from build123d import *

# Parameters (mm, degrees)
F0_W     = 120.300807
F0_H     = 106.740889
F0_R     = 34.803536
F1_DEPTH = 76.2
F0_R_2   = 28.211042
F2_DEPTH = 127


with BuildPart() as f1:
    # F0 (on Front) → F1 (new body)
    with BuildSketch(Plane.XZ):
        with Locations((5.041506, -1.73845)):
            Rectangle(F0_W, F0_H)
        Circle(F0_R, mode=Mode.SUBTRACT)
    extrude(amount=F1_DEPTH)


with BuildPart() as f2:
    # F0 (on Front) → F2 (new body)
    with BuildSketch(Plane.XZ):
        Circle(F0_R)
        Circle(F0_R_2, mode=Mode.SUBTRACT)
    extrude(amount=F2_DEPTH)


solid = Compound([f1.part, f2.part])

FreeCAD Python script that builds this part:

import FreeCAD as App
import Part
import Sketcher

V = App.Vector
Q = App.Units.Quantity

doc = App.newDocument("Part")
body = doc.addObject("PartDesign::Body", "Body")

# Sketch on XZ plane
sketch1 = doc.addObject("Sketcher::SketchObject", "Sketch")
body.addObject(sketch1)
sketch1.AttachmentSupport = (doc.XZ_Plane, [""])
sketch1.MapMode = "FlatFace"
sketch1.addGeometry([
    Part.LineSegment(V(-55.108897, 51.631994, 0), V(-55.108897, -55.108894, 0)),  # 0
    Part.LineSegment(V(-55.108897, -55.108894, 0), V(65.191909, -55.108894, 0)),  # 1
    Part.LineSegment(V(65.191909, -55.108894, 0), V(65.191909, 51.631994, 0)),  # 2
    Part.LineSegment(V(65.191909, 51.631994, 0), V(-55.108897, 51.631994, 0)),  # 3
    Part.Circle(V(0, 0, 0), V(0, 0, 1), 34.803536),  # 4
], False)
sketch1.addConstraint([
    Sketcher.Constraint("Coincident", 0, 2, 1, 1),
    Sketcher.Constraint("Coincident", 1, 2, 2, 1),
    Sketcher.Constraint("Coincident", 2, 2, 3, 1),
    Sketcher.Constraint("Coincident", 3, 2, 0, 1),
    Sketcher.Constraint("Vertical", 0),
    Sketcher.Constraint("Horizontal", 1),
    Sketcher.Constraint("Vertical", 2),
    Sketcher.Constraint("Horizontal", 3),
    Sketcher.Constraint("Coincident", 4, 3, -1, 1),
    Sketcher.Constraint("Diameter", 4, Q("69.607072 mm")),
    Sketcher.Constraint("DistanceY", 0, 2, 0, 1, Q("106.740889 mm")),
    Sketcher.Constraint("DistanceX", 1, 1, 1, 2, Q("120.300807 mm")),
    Sketcher.Constraint("DistanceX", -1, 1, 1, 2, Q("65.191909 mm")),
    Sketcher.Constraint("DistanceY", 0, 2, -1, 1, Q("55.108894 mm")),
])
pad1 = doc.addObject("PartDesign::Pad", "Pad")
body.addObject(pad1)
pad1.Profile = sketch1
pad1.Length = Q("3 in")
body2 = doc.addObject("PartDesign::Body", "Body001")

# Sketch on XZ plane
sketch2 = doc.addObject("Sketcher::SketchObject", "Sketch001")
body2.addObject(sketch2)
sketch2.AttachmentSupport = (doc.getObject("XZ_Plane001"), [""])
sketch2.MapMode = "FlatFace"
sketch2.addGeometry([
    Part.Circle(V(0, 0, 0), V(0, 0, 1), 34.803536),
    Part.Circle(V(0, 0, 0), V(0, 0, 1), 28.211042),
], False)
sketch2.addConstraint([
    Sketcher.Constraint("Coincident", 0, 3, -1, 1),
    Sketcher.Constraint("Coincident", 1, 3, -1, 1),
    Sketcher.Constraint("Diameter", 0, Q("69.607072 mm")),
    Sketcher.Constraint("Diameter", 1, Q("56.422084 mm")),
])
pad2 = doc.addObject("PartDesign::Pad", "Pad001")
body2.addObject(pad2)
pad2.Profile = sketch2
pad2.Length = Q("5 in")

doc.recompute()
